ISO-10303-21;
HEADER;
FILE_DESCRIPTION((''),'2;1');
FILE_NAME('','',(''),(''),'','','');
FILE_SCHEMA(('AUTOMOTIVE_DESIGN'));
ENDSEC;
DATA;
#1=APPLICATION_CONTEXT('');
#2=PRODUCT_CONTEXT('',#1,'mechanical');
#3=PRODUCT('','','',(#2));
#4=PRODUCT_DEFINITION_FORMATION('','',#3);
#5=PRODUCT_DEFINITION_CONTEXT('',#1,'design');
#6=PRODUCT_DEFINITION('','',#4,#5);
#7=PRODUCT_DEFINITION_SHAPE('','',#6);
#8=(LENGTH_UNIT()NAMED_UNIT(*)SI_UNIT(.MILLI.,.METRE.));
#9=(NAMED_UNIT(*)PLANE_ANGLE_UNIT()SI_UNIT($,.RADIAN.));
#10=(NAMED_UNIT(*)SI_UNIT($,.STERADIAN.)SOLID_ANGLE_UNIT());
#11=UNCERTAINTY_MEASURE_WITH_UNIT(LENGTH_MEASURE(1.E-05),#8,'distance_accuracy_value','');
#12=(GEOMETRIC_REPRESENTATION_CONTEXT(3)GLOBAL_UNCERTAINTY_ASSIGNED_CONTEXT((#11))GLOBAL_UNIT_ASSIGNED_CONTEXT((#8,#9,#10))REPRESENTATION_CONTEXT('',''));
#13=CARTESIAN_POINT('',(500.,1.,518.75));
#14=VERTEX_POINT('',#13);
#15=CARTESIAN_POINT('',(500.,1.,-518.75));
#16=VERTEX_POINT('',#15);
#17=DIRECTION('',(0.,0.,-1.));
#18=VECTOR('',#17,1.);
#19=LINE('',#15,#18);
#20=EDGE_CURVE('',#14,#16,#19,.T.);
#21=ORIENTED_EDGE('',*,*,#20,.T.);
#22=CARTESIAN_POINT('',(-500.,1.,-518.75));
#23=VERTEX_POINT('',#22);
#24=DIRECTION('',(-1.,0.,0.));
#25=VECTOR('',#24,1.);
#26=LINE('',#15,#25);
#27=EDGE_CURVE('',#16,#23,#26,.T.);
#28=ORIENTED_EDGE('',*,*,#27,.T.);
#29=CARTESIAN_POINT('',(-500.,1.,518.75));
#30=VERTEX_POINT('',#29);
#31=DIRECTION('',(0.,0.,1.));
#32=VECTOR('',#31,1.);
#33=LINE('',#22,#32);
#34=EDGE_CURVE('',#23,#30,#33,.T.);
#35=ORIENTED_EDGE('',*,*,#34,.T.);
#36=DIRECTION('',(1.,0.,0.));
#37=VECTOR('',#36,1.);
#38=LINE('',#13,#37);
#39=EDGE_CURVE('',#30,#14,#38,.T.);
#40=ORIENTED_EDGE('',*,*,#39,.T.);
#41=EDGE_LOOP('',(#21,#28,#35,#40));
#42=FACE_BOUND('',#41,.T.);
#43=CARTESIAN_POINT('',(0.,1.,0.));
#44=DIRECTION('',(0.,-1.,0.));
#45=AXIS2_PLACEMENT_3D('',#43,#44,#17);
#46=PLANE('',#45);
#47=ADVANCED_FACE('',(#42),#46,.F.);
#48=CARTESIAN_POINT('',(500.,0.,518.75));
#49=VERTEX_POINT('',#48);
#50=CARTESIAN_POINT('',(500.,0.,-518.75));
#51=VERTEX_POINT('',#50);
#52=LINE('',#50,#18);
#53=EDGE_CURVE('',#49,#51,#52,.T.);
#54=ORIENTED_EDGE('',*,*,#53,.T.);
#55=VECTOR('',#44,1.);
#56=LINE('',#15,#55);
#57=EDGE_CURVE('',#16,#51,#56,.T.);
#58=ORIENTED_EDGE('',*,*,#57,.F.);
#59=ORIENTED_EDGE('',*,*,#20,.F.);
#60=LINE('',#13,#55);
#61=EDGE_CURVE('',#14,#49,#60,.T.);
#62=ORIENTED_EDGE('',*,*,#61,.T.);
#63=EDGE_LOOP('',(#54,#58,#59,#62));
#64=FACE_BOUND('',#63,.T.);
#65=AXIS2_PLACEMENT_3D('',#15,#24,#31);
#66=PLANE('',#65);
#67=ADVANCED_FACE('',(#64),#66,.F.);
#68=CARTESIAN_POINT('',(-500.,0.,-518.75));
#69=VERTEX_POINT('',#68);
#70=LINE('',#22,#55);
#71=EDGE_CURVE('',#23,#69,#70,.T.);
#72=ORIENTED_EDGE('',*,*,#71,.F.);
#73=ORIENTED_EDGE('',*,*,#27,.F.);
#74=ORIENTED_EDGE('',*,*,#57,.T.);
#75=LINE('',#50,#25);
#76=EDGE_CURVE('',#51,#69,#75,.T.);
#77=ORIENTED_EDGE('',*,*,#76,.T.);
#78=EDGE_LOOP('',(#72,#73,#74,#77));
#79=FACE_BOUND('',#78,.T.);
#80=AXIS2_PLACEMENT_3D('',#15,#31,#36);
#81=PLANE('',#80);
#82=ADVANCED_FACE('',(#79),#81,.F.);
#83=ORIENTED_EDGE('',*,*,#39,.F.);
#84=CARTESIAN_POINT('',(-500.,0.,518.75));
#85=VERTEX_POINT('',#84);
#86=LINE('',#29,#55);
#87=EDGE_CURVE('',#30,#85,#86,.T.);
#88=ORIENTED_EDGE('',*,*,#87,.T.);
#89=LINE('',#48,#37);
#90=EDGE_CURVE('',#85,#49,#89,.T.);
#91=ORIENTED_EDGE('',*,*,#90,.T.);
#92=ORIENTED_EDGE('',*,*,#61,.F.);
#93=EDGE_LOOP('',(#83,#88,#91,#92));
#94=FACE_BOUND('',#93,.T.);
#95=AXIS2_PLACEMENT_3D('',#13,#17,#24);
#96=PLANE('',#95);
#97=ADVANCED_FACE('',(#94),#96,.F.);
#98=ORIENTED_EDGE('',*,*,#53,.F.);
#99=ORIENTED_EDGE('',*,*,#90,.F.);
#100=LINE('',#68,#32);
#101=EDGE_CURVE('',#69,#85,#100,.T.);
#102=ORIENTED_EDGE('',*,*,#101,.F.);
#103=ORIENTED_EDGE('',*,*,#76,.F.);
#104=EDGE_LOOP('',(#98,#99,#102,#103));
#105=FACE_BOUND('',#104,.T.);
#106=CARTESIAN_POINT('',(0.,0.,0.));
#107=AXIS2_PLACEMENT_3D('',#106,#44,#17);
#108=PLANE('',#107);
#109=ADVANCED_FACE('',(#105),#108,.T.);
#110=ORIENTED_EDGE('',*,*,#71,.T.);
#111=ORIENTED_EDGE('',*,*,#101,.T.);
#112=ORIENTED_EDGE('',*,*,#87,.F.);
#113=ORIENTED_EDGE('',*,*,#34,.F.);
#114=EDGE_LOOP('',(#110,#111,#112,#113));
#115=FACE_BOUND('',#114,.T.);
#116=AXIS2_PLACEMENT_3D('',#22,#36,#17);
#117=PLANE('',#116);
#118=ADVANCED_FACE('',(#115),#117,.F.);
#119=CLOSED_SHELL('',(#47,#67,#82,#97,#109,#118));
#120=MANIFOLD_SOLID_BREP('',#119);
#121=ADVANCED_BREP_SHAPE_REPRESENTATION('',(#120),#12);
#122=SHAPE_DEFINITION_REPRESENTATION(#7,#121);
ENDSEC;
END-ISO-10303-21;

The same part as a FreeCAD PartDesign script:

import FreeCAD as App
import Part
import Sketcher

V = App.Vector

doc = App.newDocument("Part")
params = doc.addObject("Spreadsheet::Sheet", "Params")
for row, (alias, value) in enumerate([
    ("sketch1_width", "1000 mm"),
    ("sketch1_height", "1037.5 mm"),
    ("pad1_length", "1 mm"),
], start=1):
    params.set(f"A{row}", alias)
    params.set(f"B{row}", "=" + value)
    params.setAlias(f"B{row}", alias)

body = doc.addObject("PartDesign::Body", "Body")

sketch1 = doc.addObject("Sketcher::SketchObject", "Sketch")
body.addObject(sketch1)
sketch1.AttachmentSupport = (doc.XZ_Plane, [""])
sketch1.MapMode = "FlatFace"
sketch1.addGeometry([
    Part.LineSegment(V(-500, -519, 0), V(-500, 519, 0)),
    Part.LineSegment(V(-500, 519, 0), V(500, 519, 0)),
    Part.LineSegment(V(500, 519, 0), V(500, -519, 0)),
    Part.LineSegment(V(500, -519, 0), V(-500, -519, 0)),
], False)
sketch1.addConstraint([
    Sketcher.Constraint("Coincident", 0, 2, 1, 1),
    Sketcher.Constraint("Coincident", 1, 2, 2, 1),
    Sketcher.Constraint("Coincident", 2, 2, 3, 1),
    Sketcher.Constraint("Coincident", 3, 2, 0, 1),
    Sketcher.Constraint("Vertical", 0),
    Sketcher.Constraint("Horizontal", 1),
    Sketcher.Constraint("Vertical", 2),
    Sketcher.Constraint("Horizontal", 3),
    Sketcher.Constraint("Symmetric", 0, 2, 2, 2, -1, 1),
    Sketcher.Constraint("DistanceX", 1, 1, 1, 2, 1000.0),
    Sketcher.Constraint("DistanceY", 0, 1, 0, 2, 1037.5),
])
sketch1.setExpression("Constraints[9]", "Params.sketch1_width")
sketch1.setExpression("Constraints[10]", "Params.sketch1_height")
pad1 = doc.addObject("PartDesign::Pad", "Pad")
body.addObject(pad1)
pad1.Profile = sketch1
pad1.setExpression("Length", "Params.pad1_length")
pad1.Reversed = True

doc.recompute()
